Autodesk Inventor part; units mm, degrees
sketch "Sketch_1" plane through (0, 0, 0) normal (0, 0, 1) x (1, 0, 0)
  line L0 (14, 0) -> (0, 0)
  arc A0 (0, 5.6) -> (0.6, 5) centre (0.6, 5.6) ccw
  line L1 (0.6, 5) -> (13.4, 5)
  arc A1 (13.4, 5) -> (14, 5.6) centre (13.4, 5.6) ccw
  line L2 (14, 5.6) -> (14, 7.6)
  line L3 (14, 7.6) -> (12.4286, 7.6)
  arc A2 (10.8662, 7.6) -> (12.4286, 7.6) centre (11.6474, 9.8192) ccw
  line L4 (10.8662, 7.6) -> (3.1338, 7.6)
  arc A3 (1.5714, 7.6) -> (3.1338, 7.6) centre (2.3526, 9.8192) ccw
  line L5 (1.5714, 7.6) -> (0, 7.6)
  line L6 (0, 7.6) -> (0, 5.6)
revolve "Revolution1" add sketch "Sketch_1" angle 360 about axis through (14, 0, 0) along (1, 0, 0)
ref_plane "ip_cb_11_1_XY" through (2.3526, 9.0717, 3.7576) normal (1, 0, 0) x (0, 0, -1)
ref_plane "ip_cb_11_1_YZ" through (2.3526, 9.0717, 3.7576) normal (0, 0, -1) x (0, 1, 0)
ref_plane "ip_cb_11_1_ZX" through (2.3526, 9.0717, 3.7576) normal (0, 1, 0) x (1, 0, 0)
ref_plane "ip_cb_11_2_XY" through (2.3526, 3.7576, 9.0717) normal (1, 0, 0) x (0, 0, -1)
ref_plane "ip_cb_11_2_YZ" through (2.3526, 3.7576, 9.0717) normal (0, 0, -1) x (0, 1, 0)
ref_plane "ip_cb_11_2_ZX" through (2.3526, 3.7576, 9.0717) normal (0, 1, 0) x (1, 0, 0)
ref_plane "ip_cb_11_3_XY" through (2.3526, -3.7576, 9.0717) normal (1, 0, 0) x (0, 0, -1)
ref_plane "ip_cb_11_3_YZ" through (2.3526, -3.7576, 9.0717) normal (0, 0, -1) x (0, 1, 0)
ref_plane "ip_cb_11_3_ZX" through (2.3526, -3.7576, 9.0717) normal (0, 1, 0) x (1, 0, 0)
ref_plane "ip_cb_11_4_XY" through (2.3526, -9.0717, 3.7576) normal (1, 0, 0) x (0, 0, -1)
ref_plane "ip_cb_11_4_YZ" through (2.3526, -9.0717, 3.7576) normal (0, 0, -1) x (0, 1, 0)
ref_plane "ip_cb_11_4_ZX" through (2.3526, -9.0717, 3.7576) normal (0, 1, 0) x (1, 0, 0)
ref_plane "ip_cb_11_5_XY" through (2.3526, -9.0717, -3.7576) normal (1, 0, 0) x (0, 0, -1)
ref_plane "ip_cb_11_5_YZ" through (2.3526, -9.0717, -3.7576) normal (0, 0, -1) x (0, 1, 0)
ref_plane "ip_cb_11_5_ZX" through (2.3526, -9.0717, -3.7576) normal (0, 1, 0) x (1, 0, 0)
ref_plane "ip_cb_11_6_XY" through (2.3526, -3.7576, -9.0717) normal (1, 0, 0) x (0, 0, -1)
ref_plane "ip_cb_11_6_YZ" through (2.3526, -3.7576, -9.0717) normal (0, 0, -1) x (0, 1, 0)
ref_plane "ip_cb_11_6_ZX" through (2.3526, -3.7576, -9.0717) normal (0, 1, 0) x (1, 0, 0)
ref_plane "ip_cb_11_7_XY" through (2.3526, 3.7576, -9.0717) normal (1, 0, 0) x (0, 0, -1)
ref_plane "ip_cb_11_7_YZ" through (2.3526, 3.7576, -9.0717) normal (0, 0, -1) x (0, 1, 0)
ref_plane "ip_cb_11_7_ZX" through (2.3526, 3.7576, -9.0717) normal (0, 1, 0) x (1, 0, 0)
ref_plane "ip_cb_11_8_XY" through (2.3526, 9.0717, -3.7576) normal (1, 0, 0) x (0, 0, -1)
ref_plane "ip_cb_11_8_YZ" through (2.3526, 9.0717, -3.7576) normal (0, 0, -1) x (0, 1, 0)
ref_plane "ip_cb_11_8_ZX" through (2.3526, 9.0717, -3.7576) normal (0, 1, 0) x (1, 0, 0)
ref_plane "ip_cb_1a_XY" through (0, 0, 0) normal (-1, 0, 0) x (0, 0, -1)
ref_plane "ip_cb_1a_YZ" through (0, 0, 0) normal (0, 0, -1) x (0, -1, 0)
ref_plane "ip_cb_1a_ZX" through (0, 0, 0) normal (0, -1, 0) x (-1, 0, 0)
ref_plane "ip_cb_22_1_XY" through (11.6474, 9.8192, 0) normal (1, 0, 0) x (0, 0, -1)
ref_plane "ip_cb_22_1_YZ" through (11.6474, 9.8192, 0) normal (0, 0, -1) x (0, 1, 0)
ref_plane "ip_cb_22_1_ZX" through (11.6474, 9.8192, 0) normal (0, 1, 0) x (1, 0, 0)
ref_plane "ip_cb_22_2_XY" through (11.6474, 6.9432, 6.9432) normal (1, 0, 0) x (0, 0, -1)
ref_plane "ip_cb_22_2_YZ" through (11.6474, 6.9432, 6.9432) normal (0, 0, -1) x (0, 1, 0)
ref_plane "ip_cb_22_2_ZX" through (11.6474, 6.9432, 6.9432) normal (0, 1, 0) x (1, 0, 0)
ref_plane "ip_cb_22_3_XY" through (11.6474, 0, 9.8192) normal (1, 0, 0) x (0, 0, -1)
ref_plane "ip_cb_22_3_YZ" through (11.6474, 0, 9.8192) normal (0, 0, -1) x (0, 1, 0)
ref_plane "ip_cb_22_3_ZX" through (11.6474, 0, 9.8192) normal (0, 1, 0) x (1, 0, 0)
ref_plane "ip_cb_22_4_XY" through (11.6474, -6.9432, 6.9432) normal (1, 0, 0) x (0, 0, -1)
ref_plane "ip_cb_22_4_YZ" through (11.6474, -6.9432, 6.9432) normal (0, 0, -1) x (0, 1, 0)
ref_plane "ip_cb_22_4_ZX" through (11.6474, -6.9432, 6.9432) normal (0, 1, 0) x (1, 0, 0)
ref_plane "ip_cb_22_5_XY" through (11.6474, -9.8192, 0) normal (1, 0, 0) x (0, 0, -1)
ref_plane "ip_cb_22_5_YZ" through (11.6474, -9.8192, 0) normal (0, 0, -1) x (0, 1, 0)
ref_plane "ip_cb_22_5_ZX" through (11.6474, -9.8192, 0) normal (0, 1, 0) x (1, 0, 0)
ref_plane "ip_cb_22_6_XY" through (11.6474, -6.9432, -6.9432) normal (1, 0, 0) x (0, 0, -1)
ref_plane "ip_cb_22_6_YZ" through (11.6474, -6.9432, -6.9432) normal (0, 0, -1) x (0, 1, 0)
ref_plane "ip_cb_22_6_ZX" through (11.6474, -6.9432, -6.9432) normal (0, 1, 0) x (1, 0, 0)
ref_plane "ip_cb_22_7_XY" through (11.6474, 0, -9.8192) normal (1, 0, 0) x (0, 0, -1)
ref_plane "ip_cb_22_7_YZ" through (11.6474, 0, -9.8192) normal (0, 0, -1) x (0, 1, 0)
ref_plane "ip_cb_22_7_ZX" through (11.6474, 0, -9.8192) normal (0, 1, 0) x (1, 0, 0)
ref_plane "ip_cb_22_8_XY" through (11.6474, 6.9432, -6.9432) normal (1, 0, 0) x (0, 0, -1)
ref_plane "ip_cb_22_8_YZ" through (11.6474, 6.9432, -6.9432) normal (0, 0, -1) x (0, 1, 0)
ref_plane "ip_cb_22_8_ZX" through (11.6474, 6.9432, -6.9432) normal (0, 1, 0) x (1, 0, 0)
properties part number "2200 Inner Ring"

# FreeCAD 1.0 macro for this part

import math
import FreeCAD as App
import Part
import Sketcher
from FreeCAD import Vector
Q = App.Units.Quantity

doc = App.newDocument("Part")
body = doc.addObject("PartDesign::Body", "Body")

sketch1 = body.newObject("Sketcher::SketchObject", "Sketch")
sketch1.AttachmentSupport = (doc.getObject("XY_Plane"), [""])
sketch1.MapMode = "FlatFace"
sketch1.addGeometry([
    Part.LineSegment(Vector(0, 7.6, 0), Vector(0, 5.6, 0)),
    Part.ArcOfCircle(Part.Circle(Vector(0.6, 5.6, 0), Vector(0, 0, 1), 0.6), math.radians(180), math.radians(270)),
    Part.LineSegment(Vector(0.6, 5, 0), Vector(13.4, 5, 0)),
    Part.ArcOfCircle(Part.Circle(Vector(13.4, 5.6, 0), Vector(0, 0, 1), 0.6), math.radians(-90), math.radians(0)),
    Part.LineSegment(Vector(14, 5.6, 0), Vector(14, 7.6, 0)),
    Part.LineSegment(Vector(14, 7.6, 0), Vector(12.4286, 7.6, 0)),
    Part.ArcOfCircle(Part.Circle(Vector(11.6474, 9.8192, 0), Vector(0, 0, 1), 2.352684), math.radians(-109.393024), math.radians(-70.606976)),
    Part.LineSegment(Vector(10.8662, 7.6, 0), Vector(3.1338, 7.6, 0)),
    Part.ArcOfCircle(Part.Circle(Vector(2.3526, 9.8192, 0), Vector(0, 0, 1), 2.352684), math.radians(-109.393024), math.radians(-70.606976)),
    Part.LineSegment(Vector(1.5714, 7.6, 0), Vector(0, 7.6, 0)),
], False)
sketch1.addConstraint([
    Sketcher.Constraint("Tangent", 0, 2, 1, 1),
    Sketcher.Constraint("Tangent", 1, 2, 2, 1),
    Sketcher.Constraint("Tangent", 2, 2, 3, 1),
    Sketcher.Constraint("Tangent", 3, 2, 4, 1),
    Sketcher.Constraint("Coincident", 4, 2, 5, 1),
    Sketcher.Constraint("Coincident", 5, 2, 6, 2),
    Sketcher.Constraint("Coincident", 6, 1, 7, 1),
    Sketcher.Constraint("Coincident", 7, 2, 8, 2),
    Sketcher.Constraint("Coincident", 8, 1, 9, 1),
    Sketcher.Constraint("Coincident", 9, 2, 0, 1),
    Sketcher.Constraint("Vertical", 0),
    Sketcher.Constraint("Horizontal", 2),
    Sketcher.Constraint("Vertical", 4),
    Sketcher.Constraint("Horizontal", 5),
    Sketcher.Constraint("Horizontal", 7),
    Sketcher.Constraint("Horizontal", 9),
    Sketcher.Constraint("Equal", 1, 3),
    Sketcher.Constraint("Equal", 6, 8),
    Sketcher.Constraint("PointOnObject", 0, 2, -2),
    Sketcher.Constraint("Horizontal", 6, 3, 8, 3),
    Sketcher.Constraint("Horizontal", 5, 2, 6, 1),
    Sketcher.Constraint("Horizontal", 7, 2, 8, 1),
    Sketcher.Constraint("Equal", 5, 9),
    Sketcher.Constraint("Radius", 1, Q("0.6 mm")),
    Sketcher.Constraint("DistanceY", 0, 2, 0, 1, Q("2 mm")),
    Sketcher.Constraint("DistanceX", 2, 1, 2, 2, Q("12.8 mm")),
    Sketcher.Constraint("DistanceY", -1, 1, 1, 2, Q("5 mm")),
    Sketcher.Constraint("Radius", 6, Q("2.3527 mm")),
    Sketcher.Constraint("DistanceX", 5, 2, 5, 1, Q("1.5714 mm")),
    Sketcher.Constraint("DistanceX", 7, 2, 7, 1, Q("7.7324 mm")),
])
revolution = body.newObject("PartDesign::Revolution", "Revolution")
revolution.Profile = sketch1
revolution.ReferenceAxis = (sketch1, ["H_Axis"])
revolution.Angle = 360

doc.recompute()
